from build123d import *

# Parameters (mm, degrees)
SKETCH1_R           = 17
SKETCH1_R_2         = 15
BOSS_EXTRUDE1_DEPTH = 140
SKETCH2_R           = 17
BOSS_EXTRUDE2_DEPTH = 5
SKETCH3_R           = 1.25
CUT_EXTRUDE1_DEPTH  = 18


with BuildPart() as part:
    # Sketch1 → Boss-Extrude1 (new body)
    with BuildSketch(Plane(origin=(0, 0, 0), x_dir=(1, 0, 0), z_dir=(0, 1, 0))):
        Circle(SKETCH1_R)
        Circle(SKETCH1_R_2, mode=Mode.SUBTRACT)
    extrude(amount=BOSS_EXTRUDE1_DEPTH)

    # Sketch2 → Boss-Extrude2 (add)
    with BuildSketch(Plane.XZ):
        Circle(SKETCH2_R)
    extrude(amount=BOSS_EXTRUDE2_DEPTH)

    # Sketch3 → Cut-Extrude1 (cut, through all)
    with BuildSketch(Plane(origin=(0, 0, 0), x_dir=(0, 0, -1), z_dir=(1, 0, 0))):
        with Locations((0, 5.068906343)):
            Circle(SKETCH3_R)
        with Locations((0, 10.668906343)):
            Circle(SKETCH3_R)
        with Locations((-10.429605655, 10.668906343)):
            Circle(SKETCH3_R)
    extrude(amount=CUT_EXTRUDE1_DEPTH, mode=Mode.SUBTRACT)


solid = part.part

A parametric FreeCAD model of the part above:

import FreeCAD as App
import Part
import Sketcher

doc = App.newDocument("Part")
body = doc.addObject("PartDesign::Body", "Body")

# Sketch on XZ plane
sketch1 = doc.addObject("Sketcher::SketchObject", "Sketch")
body.addObject(sketch1)
sketch1.AttachmentSupport = (doc.XZ_Plane, [""])
sketch1.MapMode = "FlatFace"
sketch1.addGeometry([
    Part.Circle(App.Vector(0, 0, 0), App.Vector(0, 0, 1), 17),
    Part.Circle(App.Vector(0, 0, 0), App.Vector(0, 0, 1), 15),
], False)
sketch1.addConstraint([
    Sketcher.Constraint("Coincident", 0, 3, -1, 1),
    Sketcher.Constraint("Coincident", 1, 3, -1, 1),
    Sketcher.Constraint("Diameter", 0, 34.0),
    Sketcher.Constraint("Diameter", 1, 30.0),
])
pad1 = doc.addObject("PartDesign::Pad", "Pad")
body.addObject(pad1)
pad1.Profile = sketch1
pad1.Length = 140
pad1.Reversed = True

# Sketch on XZ plane
sketch2 = doc.addObject("Sketcher::SketchObject", "Sketch001")
body.addObject(sketch2)
sketch2.AttachmentSupport = (doc.XZ_Plane, [""])
sketch2.MapMode = "FlatFace"
sketch2.addGeometry(Part.Circle(App.Vector(0, 0, 0), App.Vector(0, 0, 1), 17), False)
sketch2.addConstraint([
    Sketcher.Constraint("Coincident", 0, 3, -1, 1),
    Sketcher.Constraint("Diameter", 0, 34.0),
])
pad2 = doc.addObject("PartDesign::Pad", "Pad001")
body.addObject(pad2)
pad2.Profile = sketch2
pad2.Length = 5

# Sketch on YZ plane
sketch3 = doc.addObject("Sketcher::SketchObject", "Sketch002")
body.addObject(sketch3)
sketch3.AttachmentSupport = (doc.YZ_Plane, [""])
sketch3.MapMode = "FlatFace"
sketch3.addGeometry([
    Part.Circle(App.Vector(5.1, 0, 0), App.Vector(0, 0, 1), 1.2),
    Part.Circle(App.Vector(10.7, 0, 0), App.Vector(0, 0, 1), 1.2),
    Part.Circle(App.Vector(10.7, 10.4, 0), App.Vector(0, 0, 1), 1.2),
], False)
sketch3.addConstraint([
    Sketcher.Constraint("Equal", 0, 1),
    Sketcher.Constraint("Equal", 1, 2),
    Sketcher.Constraint("PointOnObject", 0, 3, -1),
    Sketcher.Constraint("PointOnObject", 1, 3, -1),
    Sketcher.Constraint("Vertical", 1, 3, 2, 3),
    Sketcher.Constraint("Diameter", 0, 2.5),
    Sketcher.Constraint("DistanceX", 0, 3, 1, 3, 5.6),
    Sketcher.Constraint("DistanceX", -1, 1, 0, 3, 5.068906),
    Sketcher.Constraint("DistanceY", -1, 1, 2, 3, 10.429606),
])
pocket1 = doc.addObject("PartDesign::Pocket", "Pocket")
body.addObject(pocket1)
pocket1.Profile = sketch3
pocket1.Type = "ThroughAll"
pocket1.Reversed = True

doc.recompute()
